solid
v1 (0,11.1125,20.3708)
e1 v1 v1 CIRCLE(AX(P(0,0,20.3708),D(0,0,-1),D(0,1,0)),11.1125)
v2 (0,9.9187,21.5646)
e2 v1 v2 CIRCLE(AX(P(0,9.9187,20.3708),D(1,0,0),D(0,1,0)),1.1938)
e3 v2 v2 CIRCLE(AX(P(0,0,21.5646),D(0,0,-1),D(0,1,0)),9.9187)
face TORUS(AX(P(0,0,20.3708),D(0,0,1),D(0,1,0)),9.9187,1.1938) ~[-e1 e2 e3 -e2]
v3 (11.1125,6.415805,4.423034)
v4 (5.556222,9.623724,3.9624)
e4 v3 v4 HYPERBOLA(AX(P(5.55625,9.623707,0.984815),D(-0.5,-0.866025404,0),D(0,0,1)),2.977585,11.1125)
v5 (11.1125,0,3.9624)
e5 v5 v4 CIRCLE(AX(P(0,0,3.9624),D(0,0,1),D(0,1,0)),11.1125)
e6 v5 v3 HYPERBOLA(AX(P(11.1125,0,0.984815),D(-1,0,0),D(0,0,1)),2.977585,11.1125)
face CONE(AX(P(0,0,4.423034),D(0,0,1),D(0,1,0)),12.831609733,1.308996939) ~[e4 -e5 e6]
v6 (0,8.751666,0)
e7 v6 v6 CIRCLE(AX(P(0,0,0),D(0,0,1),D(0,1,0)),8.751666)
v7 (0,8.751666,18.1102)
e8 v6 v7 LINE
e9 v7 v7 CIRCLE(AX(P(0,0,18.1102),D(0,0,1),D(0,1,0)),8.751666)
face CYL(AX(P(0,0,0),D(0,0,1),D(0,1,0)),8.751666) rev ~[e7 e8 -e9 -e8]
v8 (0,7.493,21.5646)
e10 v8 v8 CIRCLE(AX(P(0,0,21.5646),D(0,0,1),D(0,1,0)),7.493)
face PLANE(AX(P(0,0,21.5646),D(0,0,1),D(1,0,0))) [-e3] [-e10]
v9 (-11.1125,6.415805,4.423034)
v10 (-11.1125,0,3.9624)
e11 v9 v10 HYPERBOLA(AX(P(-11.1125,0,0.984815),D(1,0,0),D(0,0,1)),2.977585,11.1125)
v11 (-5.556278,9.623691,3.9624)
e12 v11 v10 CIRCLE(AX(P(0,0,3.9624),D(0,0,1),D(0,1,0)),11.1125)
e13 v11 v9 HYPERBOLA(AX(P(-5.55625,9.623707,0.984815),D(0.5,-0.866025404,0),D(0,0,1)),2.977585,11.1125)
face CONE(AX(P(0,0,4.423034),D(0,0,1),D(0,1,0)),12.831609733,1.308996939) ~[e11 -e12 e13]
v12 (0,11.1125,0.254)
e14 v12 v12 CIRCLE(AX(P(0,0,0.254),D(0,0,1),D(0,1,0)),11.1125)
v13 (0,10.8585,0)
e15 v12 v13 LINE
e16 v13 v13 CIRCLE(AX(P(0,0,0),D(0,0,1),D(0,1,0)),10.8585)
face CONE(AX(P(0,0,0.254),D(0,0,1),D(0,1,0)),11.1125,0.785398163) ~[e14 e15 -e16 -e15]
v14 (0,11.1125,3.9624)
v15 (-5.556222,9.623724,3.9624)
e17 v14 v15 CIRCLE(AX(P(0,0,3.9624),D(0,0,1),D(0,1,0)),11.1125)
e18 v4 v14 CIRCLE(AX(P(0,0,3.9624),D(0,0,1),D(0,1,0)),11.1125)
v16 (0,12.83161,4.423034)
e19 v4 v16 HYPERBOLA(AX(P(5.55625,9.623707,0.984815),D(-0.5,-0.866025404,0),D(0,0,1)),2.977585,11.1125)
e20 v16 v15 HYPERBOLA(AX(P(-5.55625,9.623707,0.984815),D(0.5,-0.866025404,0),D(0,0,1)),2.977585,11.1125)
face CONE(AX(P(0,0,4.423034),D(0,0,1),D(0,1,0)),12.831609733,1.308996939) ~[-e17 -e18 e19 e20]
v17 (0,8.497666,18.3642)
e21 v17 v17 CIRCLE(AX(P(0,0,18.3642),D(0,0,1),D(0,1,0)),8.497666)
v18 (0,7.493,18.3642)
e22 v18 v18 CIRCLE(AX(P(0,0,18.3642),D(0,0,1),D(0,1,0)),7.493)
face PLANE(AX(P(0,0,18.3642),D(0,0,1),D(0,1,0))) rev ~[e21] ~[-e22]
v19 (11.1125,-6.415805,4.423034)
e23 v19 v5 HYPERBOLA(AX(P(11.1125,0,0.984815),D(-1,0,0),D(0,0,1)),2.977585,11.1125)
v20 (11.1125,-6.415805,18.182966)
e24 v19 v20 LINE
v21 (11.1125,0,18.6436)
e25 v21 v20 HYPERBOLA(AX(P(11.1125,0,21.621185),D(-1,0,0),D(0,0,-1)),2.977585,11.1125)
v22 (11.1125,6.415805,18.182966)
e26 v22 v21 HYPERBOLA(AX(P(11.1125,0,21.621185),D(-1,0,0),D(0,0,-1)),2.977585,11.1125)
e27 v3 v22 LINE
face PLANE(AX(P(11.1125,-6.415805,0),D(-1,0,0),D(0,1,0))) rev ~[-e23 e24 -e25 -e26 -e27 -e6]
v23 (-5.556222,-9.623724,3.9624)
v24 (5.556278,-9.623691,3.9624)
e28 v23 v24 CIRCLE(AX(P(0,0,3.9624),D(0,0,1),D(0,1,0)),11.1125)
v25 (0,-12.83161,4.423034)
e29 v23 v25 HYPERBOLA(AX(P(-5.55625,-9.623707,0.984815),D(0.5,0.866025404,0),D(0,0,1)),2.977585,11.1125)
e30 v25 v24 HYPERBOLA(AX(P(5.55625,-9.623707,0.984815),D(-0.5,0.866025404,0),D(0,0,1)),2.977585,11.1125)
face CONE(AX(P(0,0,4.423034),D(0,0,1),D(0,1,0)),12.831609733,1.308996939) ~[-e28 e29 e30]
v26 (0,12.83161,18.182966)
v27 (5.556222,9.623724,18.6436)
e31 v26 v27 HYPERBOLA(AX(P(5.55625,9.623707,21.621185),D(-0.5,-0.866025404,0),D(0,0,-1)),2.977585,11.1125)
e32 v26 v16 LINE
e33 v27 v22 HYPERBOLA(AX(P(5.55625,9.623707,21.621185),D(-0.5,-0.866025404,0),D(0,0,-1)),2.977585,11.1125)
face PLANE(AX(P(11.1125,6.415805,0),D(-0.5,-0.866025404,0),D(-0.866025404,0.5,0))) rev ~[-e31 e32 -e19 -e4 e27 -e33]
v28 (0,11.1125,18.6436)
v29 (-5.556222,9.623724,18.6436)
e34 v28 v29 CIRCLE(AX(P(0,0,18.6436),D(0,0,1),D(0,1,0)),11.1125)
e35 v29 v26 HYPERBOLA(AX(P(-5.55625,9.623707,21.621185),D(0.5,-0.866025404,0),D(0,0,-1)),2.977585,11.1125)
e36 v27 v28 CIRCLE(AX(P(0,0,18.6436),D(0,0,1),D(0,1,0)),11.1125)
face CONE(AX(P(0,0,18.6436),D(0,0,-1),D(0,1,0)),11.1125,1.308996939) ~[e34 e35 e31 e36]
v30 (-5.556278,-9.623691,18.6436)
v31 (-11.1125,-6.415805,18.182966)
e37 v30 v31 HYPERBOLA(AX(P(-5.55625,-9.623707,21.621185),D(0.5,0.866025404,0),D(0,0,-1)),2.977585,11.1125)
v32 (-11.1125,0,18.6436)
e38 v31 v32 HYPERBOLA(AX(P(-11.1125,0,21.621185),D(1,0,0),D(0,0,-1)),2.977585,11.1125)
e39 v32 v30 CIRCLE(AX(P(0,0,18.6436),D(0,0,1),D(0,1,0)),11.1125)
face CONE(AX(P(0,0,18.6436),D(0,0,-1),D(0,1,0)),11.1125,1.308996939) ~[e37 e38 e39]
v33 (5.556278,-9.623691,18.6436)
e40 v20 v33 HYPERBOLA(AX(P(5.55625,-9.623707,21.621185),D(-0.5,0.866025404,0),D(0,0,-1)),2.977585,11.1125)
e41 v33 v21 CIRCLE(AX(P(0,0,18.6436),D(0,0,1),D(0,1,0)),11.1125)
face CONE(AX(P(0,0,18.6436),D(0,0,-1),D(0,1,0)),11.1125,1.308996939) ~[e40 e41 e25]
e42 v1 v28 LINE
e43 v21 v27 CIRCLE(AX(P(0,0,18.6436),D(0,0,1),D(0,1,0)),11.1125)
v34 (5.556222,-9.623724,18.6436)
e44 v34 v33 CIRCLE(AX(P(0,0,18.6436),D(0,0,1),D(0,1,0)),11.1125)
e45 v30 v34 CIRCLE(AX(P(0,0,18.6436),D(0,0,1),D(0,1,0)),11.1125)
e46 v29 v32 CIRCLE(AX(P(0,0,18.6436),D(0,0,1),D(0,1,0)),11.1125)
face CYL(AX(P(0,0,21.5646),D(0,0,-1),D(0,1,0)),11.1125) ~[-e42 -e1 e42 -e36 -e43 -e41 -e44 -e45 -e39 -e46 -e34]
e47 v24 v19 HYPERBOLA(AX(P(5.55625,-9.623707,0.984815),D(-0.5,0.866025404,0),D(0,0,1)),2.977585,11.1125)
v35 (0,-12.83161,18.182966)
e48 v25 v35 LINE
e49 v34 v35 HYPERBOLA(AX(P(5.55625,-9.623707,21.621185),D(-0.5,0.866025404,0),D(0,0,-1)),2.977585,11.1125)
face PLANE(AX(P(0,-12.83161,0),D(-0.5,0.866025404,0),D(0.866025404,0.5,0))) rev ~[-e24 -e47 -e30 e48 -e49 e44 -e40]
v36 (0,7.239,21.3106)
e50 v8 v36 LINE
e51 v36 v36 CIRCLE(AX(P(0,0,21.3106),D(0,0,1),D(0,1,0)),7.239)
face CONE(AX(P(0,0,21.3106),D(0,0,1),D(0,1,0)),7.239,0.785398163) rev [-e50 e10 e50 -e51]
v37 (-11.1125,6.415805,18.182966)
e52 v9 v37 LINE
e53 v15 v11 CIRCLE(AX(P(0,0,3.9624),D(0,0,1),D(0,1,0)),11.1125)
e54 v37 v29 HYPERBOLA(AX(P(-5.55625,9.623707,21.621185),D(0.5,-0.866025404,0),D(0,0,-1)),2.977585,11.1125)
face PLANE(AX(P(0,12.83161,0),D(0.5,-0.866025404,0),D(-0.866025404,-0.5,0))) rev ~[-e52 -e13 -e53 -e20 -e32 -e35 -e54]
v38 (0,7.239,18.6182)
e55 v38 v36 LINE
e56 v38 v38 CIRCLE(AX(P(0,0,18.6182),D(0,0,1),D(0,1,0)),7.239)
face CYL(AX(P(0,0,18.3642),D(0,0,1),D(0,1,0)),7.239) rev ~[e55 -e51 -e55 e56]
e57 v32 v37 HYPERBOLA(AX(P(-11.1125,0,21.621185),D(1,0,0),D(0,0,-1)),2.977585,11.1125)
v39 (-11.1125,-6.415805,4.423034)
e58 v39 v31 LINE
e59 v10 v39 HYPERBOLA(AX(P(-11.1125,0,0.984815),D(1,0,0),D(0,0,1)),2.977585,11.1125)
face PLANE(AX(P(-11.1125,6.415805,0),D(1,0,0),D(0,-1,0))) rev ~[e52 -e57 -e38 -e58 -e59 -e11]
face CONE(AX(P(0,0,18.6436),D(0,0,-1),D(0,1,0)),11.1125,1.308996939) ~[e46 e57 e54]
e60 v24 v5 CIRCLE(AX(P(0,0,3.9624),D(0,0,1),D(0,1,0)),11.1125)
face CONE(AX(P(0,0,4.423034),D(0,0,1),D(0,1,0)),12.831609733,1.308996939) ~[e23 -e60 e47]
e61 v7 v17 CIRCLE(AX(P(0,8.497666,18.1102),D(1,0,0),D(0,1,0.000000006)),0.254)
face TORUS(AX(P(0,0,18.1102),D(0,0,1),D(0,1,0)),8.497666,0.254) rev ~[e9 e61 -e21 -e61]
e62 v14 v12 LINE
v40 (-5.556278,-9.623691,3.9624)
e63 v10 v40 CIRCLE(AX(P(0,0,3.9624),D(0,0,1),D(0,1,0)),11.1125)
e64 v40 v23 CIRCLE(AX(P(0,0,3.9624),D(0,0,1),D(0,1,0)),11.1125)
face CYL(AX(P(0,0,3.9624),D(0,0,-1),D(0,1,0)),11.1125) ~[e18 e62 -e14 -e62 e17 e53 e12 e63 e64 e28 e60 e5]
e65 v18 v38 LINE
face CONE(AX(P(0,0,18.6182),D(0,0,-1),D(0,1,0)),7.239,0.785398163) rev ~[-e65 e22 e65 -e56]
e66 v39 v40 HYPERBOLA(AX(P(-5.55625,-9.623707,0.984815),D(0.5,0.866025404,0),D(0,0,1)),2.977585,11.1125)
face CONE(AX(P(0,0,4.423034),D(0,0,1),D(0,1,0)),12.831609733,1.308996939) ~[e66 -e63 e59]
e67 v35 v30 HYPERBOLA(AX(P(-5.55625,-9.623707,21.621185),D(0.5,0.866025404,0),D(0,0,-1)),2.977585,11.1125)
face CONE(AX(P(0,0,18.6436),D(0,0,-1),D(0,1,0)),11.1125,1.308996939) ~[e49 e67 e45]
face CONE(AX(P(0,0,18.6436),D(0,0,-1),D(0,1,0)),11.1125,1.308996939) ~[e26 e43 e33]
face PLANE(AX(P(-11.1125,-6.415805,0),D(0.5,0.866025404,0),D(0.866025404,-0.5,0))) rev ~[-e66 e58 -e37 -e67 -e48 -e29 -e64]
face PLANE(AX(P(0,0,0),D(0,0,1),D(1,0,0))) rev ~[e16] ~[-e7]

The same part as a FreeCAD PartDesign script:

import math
import FreeCAD as App
import Part
import Sketcher
from FreeCAD import Vector
Q = App.Units.Quantity


def edges_at(feature, points):
    """Names of the edges that pass closest to the given points."""
    edges = feature.Shape.Edges
    near = lambda p: min(range(len(edges)), key=lambda i: edges[i].distToShape(Part.Vertex(*p))[0])
    return sorted({f"Edge{near(p) + 1}" for p in points})

doc = App.newDocument("Part")
body = doc.addObject("PartDesign::Body", "Body")

# Sketch on XY plane
sketch1 = body.newObject("Sketcher::SketchObject", "Sketch")
sketch1.AttachmentSupport = (doc.getObject("XY_Plane"), [""])
sketch1.MapMode = "FlatFace"
sketch1.addGeometry([
    Part.LineSegment(Vector(0, 13, 0), Vector(-11, 6, 0)),  # 0
    Part.LineSegment(Vector(-11, 6, 0), Vector(-11, -6, 0)),  # 1
    Part.LineSegment(Vector(-11, -6, 0), Vector(0, -13, 0)),  # 2
    Part.LineSegment(Vector(0, -13, 0), Vector(11, -6, 0)),  # 3
    Part.LineSegment(Vector(11, -6, 0), Vector(11, 6, 0)),  # 4
    Part.LineSegment(Vector(11, 6, 0), Vector(0, 13, 0)),  # 5
], False)
sketch1.addConstraint([
    Sketcher.Constraint("Coincident", 0, 2, 1, 1),
    Sketcher.Constraint("Coincident", 1, 2, 2, 1),
    Sketcher.Constraint("Coincident", 2, 2, 3, 1),
    Sketcher.Constraint("Coincident", 3, 2, 4, 1),
    Sketcher.Constraint("Coincident", 4, 2, 5, 1),
    Sketcher.Constraint("Coincident", 5, 2, 0, 1),
    Sketcher.Constraint("Vertical", 1),
    Sketcher.Constraint("Vertical", 4),
    Sketcher.Constraint("Symmetric", 0, 2, 3, 2, -1, 1),
    Sketcher.Constraint("Symmetric", 2, 2, 5, 2, -1, 1),
    Sketcher.Constraint("PointOnObject", 2, 2, -2),
    Sketcher.Constraint("Parallel", 2, 5),
    Sketcher.Constraint("Horizontal", 1, 2, 3, 2),
    Sketcher.Constraint("Angle", 0, Q("-150 deg")),
    Sketcher.Constraint("DistanceX", 0, 2, -1, 1, Q("0.4375 in")),
    Sketcher.Constraint("DistanceY", 1, 2, 1, 1, 12.83161),
])
pad1 = body.newObject("PartDesign::Pad", "Pad")
pad1.Profile = sketch1
pad1.Length = Q("0.849 in")

# Sketch on YZ plane
sketch2 = body.newObject("Sketcher::SketchObject", "Sketch001")
sketch2.AttachmentSupport = (doc.getObject("YZ_Plane"), [""])
sketch2.MapMode = "FlatFace"
sketch2.addGeometry([
    Part.LineSegment(Vector(14.55, 21.56, 0), Vector(11.11, 21.56, 0)),  # 0
    Part.LineSegment(Vector(11.11, 21.56, 0), Vector(11.11, 18.64, 0)),  # 1
    Part.LineSegment(Vector(11.11, 18.64, 0), Vector(12.83, 18.18, 0)),  # 2
    Part.LineSegment(Vector(12.83, 18.18, 0), Vector(12.83, 4.42, 0)),  # 3
    Part.LineSegment(Vector(12.83, 4.42, 0), Vector(11.11, 3.96, 0)),  # 4
    Part.LineSegment(Vector(11.11, 3.96, 0), Vector(11.11, 0, 0)),  # 5
    Part.LineSegment(Vector(11.11, 0, 0), Vector(14.55, 0, 0)),  # 6
    Part.LineSegment(Vector(14.55, 0, 0), Vector(14.55, 21.56, 0)),  # 7
    Part.LineSegment(Vector(7.24, 21.56, 0), Vector(0, 21.56, 0)),  # 8
    Part.LineSegment(Vector(0, 21.56, 0), Vector(0, 0, 0)),  # 9
    Part.LineSegment(Vector(0, 0, 0), Vector(8.75, 0, 0)),  # 10
    Part.LineSegment(Vector(8.75, 0, 0), Vector(8.75, 18.11, 0)),  # 11
    Part.ArcOfCircle(Part.Circle(Vector(8.5, 18.11, 0), Vector(0, 0, 1), 0.25), math.radians(0), math.radians(90)),  # 12
    Part.LineSegment(Vector(8.5, 18.36, 0), Vector(7.24, 18.36, 0)),  # 13
    Part.LineSegment(Vector(7.24, 18.36, 0), Vector(7.24, 21.56, 0)),  # 14
], False)
sketch2.addConstraint([
    Sketcher.Constraint("Coincident", 0, 2, 1, 1),
    Sketcher.Constraint("Coincident", 1, 2, 2, 1),
    Sketcher.Constraint("Coincident", 2, 2, 3, 1),
    Sketcher.Constraint("Coincident", 3, 2, 4, 1),
    Sketcher.Constraint("Coincident", 4, 2, 5, 1),
    Sketcher.Constraint("Coincident", 5, 2, 6, 1),
    Sketcher.Constraint("Coincident", 6, 2, 7, 1),
    Sketcher.Constraint("Coincident", 7, 2, 0, 1),
    Sketcher.Constraint("Coincident", 8, 2, 9, 1),
    Sketcher.Constraint("Coincident", 9, 2, 10, 1),
    Sketcher.Constraint("Coincident", 10, 2, 11, 1),
    Sketcher.Constraint("Tangent", 11, 2, 12, 1),
    Sketcher.Constraint("Tangent", 12, 2, 13, 1),
    Sketcher.Constraint("Coincident", 13, 2, 14, 1),
    Sketcher.Constraint("Coincident", 14, 2, 8, 1),
    Sketcher.Constraint("Horizontal", 0),
    Sketcher.Constraint("Vertical", 1),
    Sketcher.Constraint("Vertical", 3),
    Sketcher.Constraint("Vertical", 5),
    Sketcher.Constraint("Horizontal", 6),
    Sketcher.Constraint("Vertical", 7),
    Sketcher.Constraint("Horizontal", 8),
    Sketcher.Constraint("Vertical", 9),
    Sketcher.Constraint("Horizontal", 10),
    Sketcher.Constraint("Vertical", 11),
    Sketcher.Constraint("Horizontal", 13),
    Sketcher.Constraint("Vertical", 14),
    Sketcher.Constraint("Coincident", 9, 2, -1, 1),
    Sketcher.Constraint("PointOnObject", 5, 2, -1),
    Sketcher.Constraint("Horizontal", 7, 2, 8, 2),
    Sketcher.Constraint("Vertical", 1, 2, 4, 2),
    Sketcher.Constraint("Equal", 2, 4),
    Sketcher.Constraint("Radius", 12, Q("0.01 in")),
    Sketcher.Constraint("Angle", 2, Q("-15 deg")),
    Sketcher.Constraint("DistanceX", 8, 2, 8, 1, Q("0.285 in")),
    Sketcher.Constraint("DistanceY", 1, 2, 1, 1, Q("0.115 in")),
    Sketcher.Constraint("DistanceY", 5, 2, 5, 1, Q("0.156 in")),
    Sketcher.Constraint("DistanceY", 7, 1, 7, 2, Q("0.849 in")),
    Sketcher.Constraint("DistanceY", 11, 1, 11, 2, Q("0.713 in")),
    Sketcher.Constraint("DistanceX", -1, 1, 0, 2, Q("0.4375 in")),
    Sketcher.Constraint("DistanceX", 0, 2, 0, 1, 3.438219),
    Sketcher.Constraint("DistanceY", 3, 2, 3, 1, 13.759932),
    Sketcher.Constraint("DistanceX", 10, 1, 10, 2, 8.751666),
])
groove = body.newObject("PartDesign::Groove", "Groove")
groove.Profile = sketch2
groove.ReferenceAxis = (sketch2, ["V_Axis"])
groove.Angle = 360
doc.recompute()

fillet = body.newObject("PartDesign::Fillet", "Fillet")
fillet.Base = (groove, edges_at(groove, [(0, -11.113, 21.565)]))
fillet.Radius = Q("0.047 in")
doc.recompute()

chamfer = body.newObject("PartDesign::Chamfer", "Chamfer")
chamfer.Base = (fillet, edges_at(fillet, [(0, -11.113, 0)]))
chamfer.Size = Q("0.01 in")
doc.recompute()

chamfer2 = body.newObject("PartDesign::Chamfer", "Chamfer001")
chamfer2.Base = (chamfer, edges_at(chamfer, [(0, -7.239, 21.565), (0, -7.239, 18.364)]))
chamfer2.Size = Q("0.01 in")

doc.recompute()
